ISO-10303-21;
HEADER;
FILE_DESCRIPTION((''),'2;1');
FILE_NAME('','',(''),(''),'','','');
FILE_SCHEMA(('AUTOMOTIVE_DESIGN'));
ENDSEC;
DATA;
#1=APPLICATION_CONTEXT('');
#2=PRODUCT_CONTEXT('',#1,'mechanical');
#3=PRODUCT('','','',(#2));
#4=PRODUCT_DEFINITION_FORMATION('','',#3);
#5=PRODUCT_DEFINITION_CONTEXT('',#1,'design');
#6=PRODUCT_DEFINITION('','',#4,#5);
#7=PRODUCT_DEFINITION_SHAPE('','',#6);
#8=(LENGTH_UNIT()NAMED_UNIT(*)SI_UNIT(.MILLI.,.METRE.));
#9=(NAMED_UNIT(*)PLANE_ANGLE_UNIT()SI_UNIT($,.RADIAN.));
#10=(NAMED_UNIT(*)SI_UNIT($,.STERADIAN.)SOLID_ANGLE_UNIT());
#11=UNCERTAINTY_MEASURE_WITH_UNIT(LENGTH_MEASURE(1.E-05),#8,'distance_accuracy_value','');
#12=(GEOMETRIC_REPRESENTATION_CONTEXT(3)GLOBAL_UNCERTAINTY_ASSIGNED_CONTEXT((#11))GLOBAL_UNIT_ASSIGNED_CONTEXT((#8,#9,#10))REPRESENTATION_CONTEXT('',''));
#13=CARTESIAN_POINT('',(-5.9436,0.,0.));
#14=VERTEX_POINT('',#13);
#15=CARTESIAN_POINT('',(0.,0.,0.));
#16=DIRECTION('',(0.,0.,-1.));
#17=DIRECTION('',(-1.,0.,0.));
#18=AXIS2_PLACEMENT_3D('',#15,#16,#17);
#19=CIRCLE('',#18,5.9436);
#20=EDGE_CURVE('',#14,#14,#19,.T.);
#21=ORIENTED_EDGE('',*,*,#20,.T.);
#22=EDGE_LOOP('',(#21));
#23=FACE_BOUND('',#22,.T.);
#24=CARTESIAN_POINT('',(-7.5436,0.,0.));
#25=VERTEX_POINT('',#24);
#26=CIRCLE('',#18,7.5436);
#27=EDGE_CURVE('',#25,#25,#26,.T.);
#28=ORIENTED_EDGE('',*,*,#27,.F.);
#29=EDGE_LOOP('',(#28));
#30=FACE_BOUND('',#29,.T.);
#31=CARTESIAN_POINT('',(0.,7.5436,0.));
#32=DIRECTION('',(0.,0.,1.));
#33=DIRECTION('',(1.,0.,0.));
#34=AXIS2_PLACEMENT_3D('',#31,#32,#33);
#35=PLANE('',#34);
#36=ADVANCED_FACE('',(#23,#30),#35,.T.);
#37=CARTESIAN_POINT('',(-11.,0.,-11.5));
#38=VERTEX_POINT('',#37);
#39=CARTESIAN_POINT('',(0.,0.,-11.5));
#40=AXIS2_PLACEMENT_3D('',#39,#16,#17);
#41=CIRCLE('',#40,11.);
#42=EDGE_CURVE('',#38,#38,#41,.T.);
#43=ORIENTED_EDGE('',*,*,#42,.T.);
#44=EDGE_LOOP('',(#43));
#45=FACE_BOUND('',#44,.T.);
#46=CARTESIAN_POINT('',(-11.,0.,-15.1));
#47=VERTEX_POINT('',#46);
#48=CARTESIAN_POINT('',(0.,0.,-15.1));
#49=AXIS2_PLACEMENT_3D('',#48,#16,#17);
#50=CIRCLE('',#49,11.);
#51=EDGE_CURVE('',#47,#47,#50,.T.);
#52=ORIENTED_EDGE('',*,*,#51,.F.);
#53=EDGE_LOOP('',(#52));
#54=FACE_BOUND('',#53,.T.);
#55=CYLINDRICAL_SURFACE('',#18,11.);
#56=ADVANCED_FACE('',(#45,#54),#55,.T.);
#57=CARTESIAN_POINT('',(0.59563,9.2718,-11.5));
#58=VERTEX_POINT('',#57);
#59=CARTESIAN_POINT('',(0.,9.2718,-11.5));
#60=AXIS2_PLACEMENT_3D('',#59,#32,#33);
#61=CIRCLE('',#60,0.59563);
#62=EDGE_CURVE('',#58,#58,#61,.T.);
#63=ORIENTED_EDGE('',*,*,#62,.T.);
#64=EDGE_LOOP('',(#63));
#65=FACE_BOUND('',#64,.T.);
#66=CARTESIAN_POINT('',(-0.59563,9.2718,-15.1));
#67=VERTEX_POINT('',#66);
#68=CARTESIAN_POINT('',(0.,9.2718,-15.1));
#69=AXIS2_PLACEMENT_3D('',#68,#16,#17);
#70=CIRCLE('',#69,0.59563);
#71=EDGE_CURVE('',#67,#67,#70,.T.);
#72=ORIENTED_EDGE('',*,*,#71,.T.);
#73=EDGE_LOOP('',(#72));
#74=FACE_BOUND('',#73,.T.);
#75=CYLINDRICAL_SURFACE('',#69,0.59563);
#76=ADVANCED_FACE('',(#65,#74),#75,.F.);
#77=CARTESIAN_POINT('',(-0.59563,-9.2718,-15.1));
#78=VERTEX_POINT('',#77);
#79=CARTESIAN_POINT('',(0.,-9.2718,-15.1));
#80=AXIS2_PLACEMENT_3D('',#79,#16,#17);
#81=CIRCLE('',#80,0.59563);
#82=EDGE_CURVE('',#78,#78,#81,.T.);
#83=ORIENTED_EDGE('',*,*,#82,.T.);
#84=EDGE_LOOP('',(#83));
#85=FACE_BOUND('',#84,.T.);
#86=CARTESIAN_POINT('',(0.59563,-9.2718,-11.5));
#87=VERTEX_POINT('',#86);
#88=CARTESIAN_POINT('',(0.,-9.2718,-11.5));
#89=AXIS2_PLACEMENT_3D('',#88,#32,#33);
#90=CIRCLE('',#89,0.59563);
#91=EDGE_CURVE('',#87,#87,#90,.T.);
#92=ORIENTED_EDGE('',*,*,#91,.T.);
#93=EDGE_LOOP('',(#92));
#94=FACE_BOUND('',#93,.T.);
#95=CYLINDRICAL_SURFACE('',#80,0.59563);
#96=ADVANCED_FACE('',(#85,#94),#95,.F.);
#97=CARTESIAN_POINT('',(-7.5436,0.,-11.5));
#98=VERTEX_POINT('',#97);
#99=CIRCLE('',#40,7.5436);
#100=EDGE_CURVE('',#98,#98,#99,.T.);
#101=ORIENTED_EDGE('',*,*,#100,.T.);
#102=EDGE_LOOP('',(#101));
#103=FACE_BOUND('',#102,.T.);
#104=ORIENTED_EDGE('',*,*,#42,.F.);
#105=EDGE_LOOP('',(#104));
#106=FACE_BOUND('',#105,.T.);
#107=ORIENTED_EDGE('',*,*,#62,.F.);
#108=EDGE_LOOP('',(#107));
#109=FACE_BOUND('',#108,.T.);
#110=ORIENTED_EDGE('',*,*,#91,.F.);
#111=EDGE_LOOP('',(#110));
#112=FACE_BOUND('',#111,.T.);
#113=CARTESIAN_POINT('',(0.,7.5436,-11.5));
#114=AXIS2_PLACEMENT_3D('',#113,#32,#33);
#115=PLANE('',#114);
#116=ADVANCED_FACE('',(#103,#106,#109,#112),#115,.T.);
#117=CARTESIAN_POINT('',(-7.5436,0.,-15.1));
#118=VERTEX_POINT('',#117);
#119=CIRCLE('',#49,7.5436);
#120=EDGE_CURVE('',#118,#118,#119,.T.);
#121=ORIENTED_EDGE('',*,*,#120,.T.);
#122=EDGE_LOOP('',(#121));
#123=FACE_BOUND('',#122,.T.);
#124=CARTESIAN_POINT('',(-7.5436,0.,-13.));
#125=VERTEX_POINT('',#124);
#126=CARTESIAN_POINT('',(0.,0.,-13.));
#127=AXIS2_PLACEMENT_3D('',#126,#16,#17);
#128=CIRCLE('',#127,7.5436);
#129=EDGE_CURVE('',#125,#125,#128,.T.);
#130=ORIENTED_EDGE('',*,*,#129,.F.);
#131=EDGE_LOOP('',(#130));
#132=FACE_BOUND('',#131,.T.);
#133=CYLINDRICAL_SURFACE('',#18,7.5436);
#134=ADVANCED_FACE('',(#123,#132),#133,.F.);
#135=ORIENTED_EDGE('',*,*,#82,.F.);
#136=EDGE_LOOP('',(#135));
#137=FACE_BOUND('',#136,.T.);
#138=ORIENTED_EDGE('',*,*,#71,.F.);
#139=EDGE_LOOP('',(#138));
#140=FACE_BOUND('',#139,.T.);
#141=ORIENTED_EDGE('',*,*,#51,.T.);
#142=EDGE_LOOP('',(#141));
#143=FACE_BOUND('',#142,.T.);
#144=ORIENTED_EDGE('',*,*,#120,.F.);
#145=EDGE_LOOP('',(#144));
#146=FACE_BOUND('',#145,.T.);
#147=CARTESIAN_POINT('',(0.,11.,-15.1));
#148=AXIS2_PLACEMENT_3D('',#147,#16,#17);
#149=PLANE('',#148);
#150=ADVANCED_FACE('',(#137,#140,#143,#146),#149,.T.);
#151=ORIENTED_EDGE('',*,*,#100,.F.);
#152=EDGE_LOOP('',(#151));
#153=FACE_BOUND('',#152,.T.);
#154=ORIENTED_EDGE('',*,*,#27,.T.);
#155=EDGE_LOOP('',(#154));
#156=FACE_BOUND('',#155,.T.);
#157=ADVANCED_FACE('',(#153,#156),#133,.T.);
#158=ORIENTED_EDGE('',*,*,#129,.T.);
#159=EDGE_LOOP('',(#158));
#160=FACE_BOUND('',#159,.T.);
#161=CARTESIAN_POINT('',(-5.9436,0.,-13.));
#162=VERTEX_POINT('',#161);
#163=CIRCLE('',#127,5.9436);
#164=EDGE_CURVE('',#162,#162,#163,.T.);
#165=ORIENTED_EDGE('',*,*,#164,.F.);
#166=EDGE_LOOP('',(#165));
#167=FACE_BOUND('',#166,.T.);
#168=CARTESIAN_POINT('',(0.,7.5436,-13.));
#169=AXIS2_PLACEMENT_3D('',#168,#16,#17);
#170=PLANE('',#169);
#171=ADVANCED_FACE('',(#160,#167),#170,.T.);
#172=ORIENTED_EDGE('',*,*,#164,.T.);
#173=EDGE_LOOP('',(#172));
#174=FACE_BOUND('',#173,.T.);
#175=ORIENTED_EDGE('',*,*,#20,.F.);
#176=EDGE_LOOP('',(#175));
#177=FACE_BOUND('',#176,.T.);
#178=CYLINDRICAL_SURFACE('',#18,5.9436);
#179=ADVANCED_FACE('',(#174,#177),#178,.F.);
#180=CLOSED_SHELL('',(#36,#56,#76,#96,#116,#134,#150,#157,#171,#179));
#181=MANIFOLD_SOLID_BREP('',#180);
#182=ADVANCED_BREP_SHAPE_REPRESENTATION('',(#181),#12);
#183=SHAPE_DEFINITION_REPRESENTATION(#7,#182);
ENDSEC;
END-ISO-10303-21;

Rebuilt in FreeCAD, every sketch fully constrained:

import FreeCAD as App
import Part
import Sketcher
from FreeCAD import Vector
Q = App.Units.Quantity

doc = App.newDocument("Part")
body = doc.addObject("PartDesign::Body", "Body")

sketch1 = body.newObject("Sketcher::SketchObject", "Sketch")
sketch1.AttachmentSupport = (doc.getObject("YZ_Plane"), [""])
sketch1.MapMode = "FlatFace"
sketch1.addGeometry(Part.LineSegment(Vector(7.5436, -15.1, 0), Vector(11, -15.1, 0)), False)
sketch1.addGeometry(Part.LineSegment(Vector(11, -15.1, 0), Vector(11, -11.5, 0)), False)
sketch1.addGeometry(Part.LineSegment(Vector(11, -11.5, 0), Vector(7.5436, -11.5, 0)), False)
sketch1.addGeometry(Part.LineSegment(Vector(7.5436, -11.5, 0), Vector(7.5436, 0, 0)), False)
sketch1.addGeometry(Part.LineSegment(Vector(7.5436, 0, 0), Vector(5.9436, 0, 0)), False)
sketch1.addGeometry(Part.LineSegment(Vector(5.9436, 0, 0), Vector(5.9436, -13, 0)), False)
sketch1.addGeometry(Part.LineSegment(Vector(5.9436, -13, 0), Vector(7.5436, -13, 0)), False)
sketch1.addGeometry(Part.LineSegment(Vector(7.5436, -13, 0), Vector(7.5436, -15.1, 0)), False)
sketch1.addConstraint(Sketcher.Constraint("Coincident", 0, 2, 1, 1))
sketch1.addConstraint(Sketcher.Constraint("Coincident", 1, 2, 2, 1))
sketch1.addConstraint(Sketcher.Constraint("Coincident", 2, 2, 3, 1))
sketch1.addConstraint(Sketcher.Constraint("Coincident", 3, 2, 4, 1))
sketch1.addConstraint(Sketcher.Constraint("Coincident", 4, 2, 5, 1))
sketch1.addConstraint(Sketcher.Constraint("Coincident", 5, 2, 6, 1))
sketch1.addConstraint(Sketcher.Constraint("Coincident", 6, 2, 7, 1))
sketch1.addConstraint(Sketcher.Constraint("Coincident", 7, 2, 0, 1))
sketch1.addConstraint(Sketcher.Constraint("Horizontal", 0))
sketch1.addConstraint(Sketcher.Constraint("Vertical", 1))
sketch1.addConstraint(Sketcher.Constraint("Horizontal", 2))
sketch1.addConstraint(Sketcher.Constraint("Vertical", 3))
sketch1.addConstraint(Sketcher.Constraint("Horizontal", 4))
sketch1.addConstraint(Sketcher.Constraint("Vertical", 5))
sketch1.addConstraint(Sketcher.Constraint("Horizontal", 6))
sketch1.addConstraint(Sketcher.Constraint("Vertical", 7))
sketch1.addConstraint(Sketcher.Constraint("PointOnObject", 3, 2, -1))
sketch1.addConstraint(Sketcher.Constraint("Vertical", 3, 2, 6, 2))
sketch1.addConstraint(Sketcher.Constraint("DistanceY", 5, 2, 5, 1, Q("13 mm")))
sketch1.addConstraint(Sketcher.Constraint("DistanceX", 4, 2, 4, 1, Q("1.6 mm")))
sketch1.addConstraint(Sketcher.Constraint("DistanceY", 1, 1, 1, 2, Q("3.6 mm")))
sketch1.addConstraint(Sketcher.Constraint("DistanceY", 3, 1, 3, 2, Q("11.5 mm")))
sketch1.addConstraint(Sketcher.Constraint("DistanceX", -1, 1, 0, 2, Q("11 mm")))
sketch1.addConstraint(Sketcher.Constraint("DistanceX", 0, 1, 0, 2, Q("3.4564 mm")))
revolution = body.newObject("PartDesign::Revolution", "Revolution")
revolution.Profile = sketch1
revolution.ReferenceAxis = (sketch1, ["V_Axis"])
revolution.Angle = 360

sketch2 = body.newObject("Sketcher::SketchObject", "Sketch001")
sketch2.AttachmentSupport = (doc.getObject("XY_Plane"), [""])
sketch2.MapMode = "FlatFace"
sketch2.AttachmentOffset = App.Placement(Vector(0, 0, -15.1), App.Rotation())
sketch2.addGeometry(Part.Circle(Vector(0, 9.2718, 0), Vector(0, 0, 1), 0.59563), False)
sketch2.addConstraint(Sketcher.Constraint("PointOnObject", 0, 3, -2))
sketch2.addConstraint(Sketcher.Constraint("Diameter", 0, Q("1.19126 mm")))
sketch2.addConstraint(Sketcher.Constraint("DistanceY", -1, 1, 0, 3, Q("9.2718 mm")))
doc.recompute()
hole = body.newObject("PartDesign::Hole", "Hole")
hole.Profile = sketch2
hole.ThreadType = "None"
hole.Diameter = 1.19126
hole.DepthType = "ThroughAll"
hole.Reversed = True
doc.recompute()

mirrored = body.newObject("PartDesign::Mirrored", "Mirrored")
mirrored.Originals = [hole]
mirrored.MirrorPlane = (doc.getObject("XZ_Plane"), [""])
body.Tip = mirrored

doc.recompute()
